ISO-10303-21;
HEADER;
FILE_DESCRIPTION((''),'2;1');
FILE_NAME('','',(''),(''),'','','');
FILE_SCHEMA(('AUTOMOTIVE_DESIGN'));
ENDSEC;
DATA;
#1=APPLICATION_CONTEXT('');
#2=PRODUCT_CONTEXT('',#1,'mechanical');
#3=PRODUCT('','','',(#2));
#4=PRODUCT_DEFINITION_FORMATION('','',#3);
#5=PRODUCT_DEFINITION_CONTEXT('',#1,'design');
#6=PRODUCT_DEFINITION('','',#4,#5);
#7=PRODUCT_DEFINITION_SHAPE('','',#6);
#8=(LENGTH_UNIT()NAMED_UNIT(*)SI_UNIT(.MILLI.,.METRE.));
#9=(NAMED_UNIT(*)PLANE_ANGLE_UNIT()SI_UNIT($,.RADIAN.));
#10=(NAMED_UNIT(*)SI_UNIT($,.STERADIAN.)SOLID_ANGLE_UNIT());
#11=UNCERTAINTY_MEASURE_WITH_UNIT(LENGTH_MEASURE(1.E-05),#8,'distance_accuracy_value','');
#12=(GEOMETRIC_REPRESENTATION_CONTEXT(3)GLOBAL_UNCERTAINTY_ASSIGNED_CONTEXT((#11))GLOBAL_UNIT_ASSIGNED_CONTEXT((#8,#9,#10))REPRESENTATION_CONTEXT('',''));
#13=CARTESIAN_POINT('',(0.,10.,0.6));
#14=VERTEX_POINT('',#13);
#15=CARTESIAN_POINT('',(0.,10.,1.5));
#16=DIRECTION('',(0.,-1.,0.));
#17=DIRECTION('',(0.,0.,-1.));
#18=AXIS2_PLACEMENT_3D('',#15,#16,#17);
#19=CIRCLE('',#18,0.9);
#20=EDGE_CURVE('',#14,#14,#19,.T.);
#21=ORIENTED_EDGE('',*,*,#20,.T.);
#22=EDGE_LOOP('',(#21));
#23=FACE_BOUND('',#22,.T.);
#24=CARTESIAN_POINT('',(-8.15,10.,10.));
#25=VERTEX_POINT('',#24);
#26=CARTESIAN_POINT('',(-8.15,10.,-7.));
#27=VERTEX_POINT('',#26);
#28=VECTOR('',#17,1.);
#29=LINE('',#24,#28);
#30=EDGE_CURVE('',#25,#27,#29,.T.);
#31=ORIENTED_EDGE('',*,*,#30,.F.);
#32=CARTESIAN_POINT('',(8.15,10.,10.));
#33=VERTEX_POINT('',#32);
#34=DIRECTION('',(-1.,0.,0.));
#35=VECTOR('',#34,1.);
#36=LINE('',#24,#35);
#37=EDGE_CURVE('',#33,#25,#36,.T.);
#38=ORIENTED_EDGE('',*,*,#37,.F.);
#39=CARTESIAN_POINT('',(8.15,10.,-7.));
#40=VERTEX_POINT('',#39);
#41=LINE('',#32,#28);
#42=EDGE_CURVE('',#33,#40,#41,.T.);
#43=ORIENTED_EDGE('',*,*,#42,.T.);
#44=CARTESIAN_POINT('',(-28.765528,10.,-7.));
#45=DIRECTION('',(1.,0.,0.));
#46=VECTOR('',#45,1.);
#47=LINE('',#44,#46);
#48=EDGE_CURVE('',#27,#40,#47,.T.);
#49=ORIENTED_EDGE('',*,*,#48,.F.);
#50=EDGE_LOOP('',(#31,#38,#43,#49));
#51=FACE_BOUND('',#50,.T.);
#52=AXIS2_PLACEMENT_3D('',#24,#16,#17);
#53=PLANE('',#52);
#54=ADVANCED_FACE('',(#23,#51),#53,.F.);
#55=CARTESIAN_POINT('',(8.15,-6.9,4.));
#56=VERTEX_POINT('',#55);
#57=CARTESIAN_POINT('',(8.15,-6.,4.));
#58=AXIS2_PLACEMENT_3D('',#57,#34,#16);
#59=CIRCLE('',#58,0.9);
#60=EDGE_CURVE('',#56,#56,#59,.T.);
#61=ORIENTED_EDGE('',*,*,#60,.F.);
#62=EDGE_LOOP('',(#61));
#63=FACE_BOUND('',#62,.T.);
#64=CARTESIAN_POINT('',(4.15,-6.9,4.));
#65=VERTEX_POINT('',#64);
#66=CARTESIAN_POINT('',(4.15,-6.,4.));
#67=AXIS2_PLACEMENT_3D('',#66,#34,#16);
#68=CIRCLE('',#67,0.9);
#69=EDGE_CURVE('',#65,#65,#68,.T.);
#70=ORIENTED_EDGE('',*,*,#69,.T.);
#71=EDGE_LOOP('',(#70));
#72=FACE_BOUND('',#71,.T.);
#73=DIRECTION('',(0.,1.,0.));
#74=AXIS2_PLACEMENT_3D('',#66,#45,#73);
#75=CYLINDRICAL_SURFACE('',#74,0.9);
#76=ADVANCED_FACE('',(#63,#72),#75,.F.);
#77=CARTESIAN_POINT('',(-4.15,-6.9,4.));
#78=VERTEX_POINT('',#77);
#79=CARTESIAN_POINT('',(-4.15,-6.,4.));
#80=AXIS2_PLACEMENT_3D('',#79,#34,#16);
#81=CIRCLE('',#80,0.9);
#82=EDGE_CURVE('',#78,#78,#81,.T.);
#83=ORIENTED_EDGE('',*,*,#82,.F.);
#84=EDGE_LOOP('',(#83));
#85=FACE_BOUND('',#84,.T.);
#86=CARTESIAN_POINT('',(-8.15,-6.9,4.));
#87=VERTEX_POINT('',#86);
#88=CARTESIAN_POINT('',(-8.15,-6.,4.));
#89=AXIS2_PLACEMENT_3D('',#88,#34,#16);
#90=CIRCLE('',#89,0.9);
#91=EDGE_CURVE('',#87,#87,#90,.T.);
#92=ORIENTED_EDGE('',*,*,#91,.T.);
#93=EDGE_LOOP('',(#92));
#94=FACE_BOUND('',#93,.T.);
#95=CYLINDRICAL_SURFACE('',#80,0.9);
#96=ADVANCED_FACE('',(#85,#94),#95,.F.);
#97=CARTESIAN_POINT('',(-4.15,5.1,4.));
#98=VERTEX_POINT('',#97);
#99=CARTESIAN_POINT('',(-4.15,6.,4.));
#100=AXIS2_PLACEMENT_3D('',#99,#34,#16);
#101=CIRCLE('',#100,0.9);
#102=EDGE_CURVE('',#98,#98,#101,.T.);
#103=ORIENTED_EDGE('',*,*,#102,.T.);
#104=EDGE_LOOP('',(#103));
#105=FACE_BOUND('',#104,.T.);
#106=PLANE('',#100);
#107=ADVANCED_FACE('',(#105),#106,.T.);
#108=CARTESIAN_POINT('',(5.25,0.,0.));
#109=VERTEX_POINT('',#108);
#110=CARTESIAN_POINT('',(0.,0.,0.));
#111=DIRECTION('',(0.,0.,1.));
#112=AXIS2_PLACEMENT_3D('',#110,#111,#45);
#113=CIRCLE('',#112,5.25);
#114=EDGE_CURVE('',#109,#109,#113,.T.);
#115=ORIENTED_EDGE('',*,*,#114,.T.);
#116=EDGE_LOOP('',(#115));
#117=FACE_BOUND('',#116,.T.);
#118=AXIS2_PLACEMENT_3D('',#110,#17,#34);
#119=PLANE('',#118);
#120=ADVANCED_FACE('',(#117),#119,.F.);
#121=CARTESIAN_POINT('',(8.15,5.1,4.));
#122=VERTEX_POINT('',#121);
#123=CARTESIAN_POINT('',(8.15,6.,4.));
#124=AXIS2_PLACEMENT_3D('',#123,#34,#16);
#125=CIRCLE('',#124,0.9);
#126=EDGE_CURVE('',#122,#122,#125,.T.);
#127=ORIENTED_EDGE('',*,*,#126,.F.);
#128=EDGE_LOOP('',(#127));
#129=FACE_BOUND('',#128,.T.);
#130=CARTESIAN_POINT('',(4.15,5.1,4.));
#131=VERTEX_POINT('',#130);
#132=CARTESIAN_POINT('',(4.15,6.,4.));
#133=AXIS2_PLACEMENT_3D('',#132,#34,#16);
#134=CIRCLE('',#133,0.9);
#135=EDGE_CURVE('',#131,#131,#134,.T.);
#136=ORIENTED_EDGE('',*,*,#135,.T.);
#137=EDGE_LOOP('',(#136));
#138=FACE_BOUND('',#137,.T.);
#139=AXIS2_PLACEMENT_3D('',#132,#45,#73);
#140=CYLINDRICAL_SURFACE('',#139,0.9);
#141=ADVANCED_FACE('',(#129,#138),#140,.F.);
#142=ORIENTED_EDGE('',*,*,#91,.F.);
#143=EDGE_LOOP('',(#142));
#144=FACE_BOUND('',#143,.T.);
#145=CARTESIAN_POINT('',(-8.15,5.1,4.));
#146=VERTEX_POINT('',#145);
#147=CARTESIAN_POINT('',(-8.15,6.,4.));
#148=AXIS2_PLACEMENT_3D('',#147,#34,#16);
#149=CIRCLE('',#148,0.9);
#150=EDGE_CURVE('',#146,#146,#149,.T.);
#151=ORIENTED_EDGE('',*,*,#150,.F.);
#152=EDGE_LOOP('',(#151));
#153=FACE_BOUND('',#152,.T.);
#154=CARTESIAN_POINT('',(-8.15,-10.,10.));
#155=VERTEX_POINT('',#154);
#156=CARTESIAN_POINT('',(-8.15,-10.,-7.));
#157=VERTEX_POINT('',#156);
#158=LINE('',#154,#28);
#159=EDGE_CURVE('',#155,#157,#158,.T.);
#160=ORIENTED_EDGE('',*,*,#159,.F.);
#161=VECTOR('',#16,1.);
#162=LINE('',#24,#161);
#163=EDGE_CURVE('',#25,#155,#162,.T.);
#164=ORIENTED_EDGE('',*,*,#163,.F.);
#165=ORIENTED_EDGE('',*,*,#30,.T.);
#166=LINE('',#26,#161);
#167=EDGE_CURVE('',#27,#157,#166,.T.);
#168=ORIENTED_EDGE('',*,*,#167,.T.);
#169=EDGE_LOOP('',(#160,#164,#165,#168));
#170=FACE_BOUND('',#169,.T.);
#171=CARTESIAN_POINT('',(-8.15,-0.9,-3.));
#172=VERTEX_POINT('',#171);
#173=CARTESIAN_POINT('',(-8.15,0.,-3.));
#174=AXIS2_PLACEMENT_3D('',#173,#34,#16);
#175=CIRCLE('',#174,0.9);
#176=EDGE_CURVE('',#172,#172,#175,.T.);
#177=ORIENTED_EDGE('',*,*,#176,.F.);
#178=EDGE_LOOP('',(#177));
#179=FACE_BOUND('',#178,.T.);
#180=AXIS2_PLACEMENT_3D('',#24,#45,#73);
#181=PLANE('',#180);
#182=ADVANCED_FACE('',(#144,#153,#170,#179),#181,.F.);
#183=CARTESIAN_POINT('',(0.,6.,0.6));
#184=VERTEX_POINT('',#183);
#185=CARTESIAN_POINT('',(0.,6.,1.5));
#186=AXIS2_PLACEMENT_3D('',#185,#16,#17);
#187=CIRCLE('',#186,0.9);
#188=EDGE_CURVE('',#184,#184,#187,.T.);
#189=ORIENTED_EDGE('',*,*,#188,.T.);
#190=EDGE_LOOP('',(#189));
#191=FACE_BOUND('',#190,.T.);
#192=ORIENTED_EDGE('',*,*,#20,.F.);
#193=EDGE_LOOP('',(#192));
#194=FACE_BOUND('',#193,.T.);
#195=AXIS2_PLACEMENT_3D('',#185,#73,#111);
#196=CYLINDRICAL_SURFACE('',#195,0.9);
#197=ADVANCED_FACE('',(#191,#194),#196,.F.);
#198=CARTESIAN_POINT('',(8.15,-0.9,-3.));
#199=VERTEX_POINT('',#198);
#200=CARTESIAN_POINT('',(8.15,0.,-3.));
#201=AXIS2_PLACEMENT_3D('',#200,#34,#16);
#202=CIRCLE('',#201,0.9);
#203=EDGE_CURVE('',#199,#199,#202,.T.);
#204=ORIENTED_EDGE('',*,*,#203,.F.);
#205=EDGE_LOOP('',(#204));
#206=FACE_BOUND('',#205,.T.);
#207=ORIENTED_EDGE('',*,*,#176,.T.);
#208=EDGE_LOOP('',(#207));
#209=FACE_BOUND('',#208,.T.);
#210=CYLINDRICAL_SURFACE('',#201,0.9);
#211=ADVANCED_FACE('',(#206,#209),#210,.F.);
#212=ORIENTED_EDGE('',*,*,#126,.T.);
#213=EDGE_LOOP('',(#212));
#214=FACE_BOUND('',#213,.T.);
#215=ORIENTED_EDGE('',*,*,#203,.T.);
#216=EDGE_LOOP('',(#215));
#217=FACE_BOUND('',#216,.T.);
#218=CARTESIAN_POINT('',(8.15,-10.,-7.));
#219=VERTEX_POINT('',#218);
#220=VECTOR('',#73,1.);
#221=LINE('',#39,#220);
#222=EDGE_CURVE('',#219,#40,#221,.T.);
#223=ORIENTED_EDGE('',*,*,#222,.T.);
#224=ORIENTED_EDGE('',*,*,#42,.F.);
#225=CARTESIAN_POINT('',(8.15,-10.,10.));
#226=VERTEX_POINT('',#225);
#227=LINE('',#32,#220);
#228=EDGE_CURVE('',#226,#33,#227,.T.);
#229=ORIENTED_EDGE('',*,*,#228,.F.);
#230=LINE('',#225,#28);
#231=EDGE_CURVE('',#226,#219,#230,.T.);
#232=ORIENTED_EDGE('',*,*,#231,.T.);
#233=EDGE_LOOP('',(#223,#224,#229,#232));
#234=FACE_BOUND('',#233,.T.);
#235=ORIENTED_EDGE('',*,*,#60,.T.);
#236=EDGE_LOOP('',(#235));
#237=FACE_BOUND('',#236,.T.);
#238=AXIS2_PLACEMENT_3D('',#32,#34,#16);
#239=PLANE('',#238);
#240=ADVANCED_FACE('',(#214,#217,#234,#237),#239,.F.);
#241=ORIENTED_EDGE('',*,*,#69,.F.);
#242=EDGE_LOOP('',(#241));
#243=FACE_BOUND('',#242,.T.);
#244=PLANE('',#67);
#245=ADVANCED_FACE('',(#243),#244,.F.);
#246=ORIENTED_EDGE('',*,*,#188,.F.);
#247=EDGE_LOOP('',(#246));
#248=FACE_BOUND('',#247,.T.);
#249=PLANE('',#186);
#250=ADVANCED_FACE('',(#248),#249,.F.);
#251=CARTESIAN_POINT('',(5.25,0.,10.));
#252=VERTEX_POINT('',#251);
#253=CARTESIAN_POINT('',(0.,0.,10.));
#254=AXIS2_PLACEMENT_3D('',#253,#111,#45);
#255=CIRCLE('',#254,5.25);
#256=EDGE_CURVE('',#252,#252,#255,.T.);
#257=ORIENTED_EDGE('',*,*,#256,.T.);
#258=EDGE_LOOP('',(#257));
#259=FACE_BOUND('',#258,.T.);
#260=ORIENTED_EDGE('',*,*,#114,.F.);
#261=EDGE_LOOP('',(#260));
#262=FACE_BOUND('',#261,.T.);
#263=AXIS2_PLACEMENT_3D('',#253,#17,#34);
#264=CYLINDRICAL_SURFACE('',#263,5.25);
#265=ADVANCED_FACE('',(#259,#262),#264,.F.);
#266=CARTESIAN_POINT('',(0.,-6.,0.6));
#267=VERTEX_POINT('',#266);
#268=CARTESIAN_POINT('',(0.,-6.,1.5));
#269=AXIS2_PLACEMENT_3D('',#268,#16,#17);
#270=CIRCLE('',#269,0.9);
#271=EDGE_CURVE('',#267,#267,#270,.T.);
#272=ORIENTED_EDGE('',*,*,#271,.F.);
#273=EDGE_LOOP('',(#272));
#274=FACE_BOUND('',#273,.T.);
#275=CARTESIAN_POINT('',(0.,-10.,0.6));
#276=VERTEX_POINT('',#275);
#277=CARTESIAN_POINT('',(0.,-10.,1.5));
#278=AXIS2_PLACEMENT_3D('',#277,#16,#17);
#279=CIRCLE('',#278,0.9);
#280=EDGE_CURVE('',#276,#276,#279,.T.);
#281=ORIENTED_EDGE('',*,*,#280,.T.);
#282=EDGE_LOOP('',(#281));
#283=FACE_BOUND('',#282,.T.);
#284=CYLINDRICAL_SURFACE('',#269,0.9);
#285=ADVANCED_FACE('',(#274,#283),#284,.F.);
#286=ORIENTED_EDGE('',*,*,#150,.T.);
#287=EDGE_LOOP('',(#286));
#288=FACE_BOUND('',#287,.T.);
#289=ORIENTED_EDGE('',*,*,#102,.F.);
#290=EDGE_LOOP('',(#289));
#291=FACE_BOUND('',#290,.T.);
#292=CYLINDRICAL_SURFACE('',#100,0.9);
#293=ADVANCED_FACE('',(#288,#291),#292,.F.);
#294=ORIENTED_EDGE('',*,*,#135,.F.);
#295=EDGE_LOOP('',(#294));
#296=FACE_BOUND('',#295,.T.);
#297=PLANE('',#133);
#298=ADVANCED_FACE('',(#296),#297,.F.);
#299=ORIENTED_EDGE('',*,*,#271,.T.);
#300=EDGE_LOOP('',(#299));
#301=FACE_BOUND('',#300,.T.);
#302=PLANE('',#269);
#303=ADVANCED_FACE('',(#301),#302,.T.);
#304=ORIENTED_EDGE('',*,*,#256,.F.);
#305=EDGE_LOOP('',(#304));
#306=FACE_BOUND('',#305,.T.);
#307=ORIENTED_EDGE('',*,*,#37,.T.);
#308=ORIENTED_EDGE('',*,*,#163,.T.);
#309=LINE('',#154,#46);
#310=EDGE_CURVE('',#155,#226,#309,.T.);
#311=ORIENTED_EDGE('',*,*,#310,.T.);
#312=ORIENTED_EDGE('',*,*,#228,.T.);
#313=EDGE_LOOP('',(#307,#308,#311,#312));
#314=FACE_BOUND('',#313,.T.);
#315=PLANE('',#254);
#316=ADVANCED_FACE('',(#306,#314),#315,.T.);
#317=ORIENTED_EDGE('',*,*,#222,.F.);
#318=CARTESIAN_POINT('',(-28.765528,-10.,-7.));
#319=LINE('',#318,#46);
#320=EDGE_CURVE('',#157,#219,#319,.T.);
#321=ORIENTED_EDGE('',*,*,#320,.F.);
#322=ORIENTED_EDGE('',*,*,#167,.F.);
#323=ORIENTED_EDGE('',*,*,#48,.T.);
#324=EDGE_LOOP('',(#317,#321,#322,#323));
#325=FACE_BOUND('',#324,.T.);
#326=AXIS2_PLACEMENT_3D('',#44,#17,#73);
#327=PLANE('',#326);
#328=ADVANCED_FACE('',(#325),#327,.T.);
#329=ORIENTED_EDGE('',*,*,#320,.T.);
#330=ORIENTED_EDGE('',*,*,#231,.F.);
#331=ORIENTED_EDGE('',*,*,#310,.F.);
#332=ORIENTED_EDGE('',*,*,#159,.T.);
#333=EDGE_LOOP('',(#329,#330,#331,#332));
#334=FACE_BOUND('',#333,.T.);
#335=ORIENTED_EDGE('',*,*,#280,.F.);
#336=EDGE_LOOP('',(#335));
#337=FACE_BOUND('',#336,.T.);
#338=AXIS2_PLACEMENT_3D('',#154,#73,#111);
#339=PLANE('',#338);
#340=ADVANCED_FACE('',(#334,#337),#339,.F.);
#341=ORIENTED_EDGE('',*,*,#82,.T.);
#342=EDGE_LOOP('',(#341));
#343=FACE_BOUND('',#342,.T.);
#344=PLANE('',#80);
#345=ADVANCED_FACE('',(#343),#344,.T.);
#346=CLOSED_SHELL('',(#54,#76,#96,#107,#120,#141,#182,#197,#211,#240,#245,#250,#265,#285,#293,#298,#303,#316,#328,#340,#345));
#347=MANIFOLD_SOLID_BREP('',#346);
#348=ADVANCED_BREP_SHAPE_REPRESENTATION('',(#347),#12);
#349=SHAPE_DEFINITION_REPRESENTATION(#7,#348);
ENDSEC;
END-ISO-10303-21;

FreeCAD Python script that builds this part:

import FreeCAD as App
import Part
import Sketcher


def add_polygon(sketch, points):
    """Adds a closed chain of lines whose ends are joined by coincident constraints."""
    first, n = sketch.GeometryCount, len(points)
    for a, b in zip(points, points[1:] + points[:1]):
        sketch.addGeometry(Part.LineSegment(App.Vector(*a, 0), App.Vector(*b, 0)), False)
    for i in range(n):
        sketch.addConstraint(Sketcher.Constraint("Coincident", first + i, 2, first + (i + 1) % n, 1))

doc = App.newDocument("Part")
body = doc.addObject("PartDesign::Body", "Body")

sketch1 = doc.addObject("Sketcher::SketchObject", "Sketch")
body.addObject(sketch1)
sketch1.AttachmentSupport = (doc.XY_Plane, [""])
sketch1.MapMode = "FlatFace"
add_polygon(sketch1, [(-8, 10), (-8, -10), (8, -10), (8, 10)])
sketch1.addGeometry(Part.Circle(App.Vector(0, 0, 0), App.Vector(0, 0, 1), 5), False)
sketch1.addConstraint([
    Sketcher.Constraint("Vertical", 0),
    Sketcher.Constraint("Horizontal", 1),
    Sketcher.Constraint("Vertical", 2),
    Sketcher.Constraint("Horizontal", 3),
    Sketcher.Constraint("Coincident", 4, 3, -1, 1),
    Sketcher.Constraint("Symmetric", 0, 2, 2, 2, -1, 1),
    Sketcher.Constraint("Diameter", 4, 10.5),
    Sketcher.Constraint("DistanceY", 0, 2, 0, 1, 20.0),
    Sketcher.Constraint("DistanceX", 1, 1, 1, 2, 16.3),
])
pad1 = doc.addObject("PartDesign::Pad", "Pad")
body.addObject(pad1)
pad1.Profile = sketch1
pad1.Length = 10

sketch2 = doc.addObject("Sketcher::SketchObject", "Sketch001")
body.addObject(sketch2)
sketch2.AttachmentSupport = (doc.XY_Plane, [""])
sketch2.MapMode = "FlatFace"
add_polygon(sketch2, [(-8, 10), (-8, -10), (8, -10), (8, 10)])
sketch2.addConstraint([
    Sketcher.Constraint("Vertical", 0),
    Sketcher.Constraint("Horizontal", 1),
    Sketcher.Constraint("Vertical", 2),
    Sketcher.Constraint("Horizontal", 3),
    Sketcher.Constraint("Symmetric", 0, 2, 2, 2, -1, 1),
    Sketcher.Constraint("DistanceY", 0, 2, 0, 1, 20.0),
    Sketcher.Constraint("DistanceX", 1, 1, 1, 2, 16.3),
])
pad2 = doc.addObject("PartDesign::Pad", "Pad001")
body.addObject(pad2)
pad2.Profile = sketch2
pad2.Length = 2
pad2.Reversed = True

sketch3 = doc.addObject("Sketcher::SketchObject", "Sketch002")
body.addObject(sketch3)
sketch3.AttachmentSupport = (doc.YZ_Plane, [""])
sketch3.MapMode = "FlatFace"
sketch3.AttachmentOffset = App.Placement(App.Vector(0, 0, -8.15), App.Rotation())
sketch3.addGeometry([
    Part.Circle(App.Vector(6, 4, 0), App.Vector(0, 0, 1), 0.9),
    Part.Circle(App.Vector(-6, 4, 0), App.Vector(0, 0, 1), 0.9),
], False)
sketch3.addConstraint([
    Sketcher.Constraint("Equal", 0, 1),
    Sketcher.Constraint("Symmetric", 0, 3, 1, 3, -2),
    Sketcher.Constraint("Diameter", 0, 1.8),
    Sketcher.Constraint("DistanceX", -1, 1, 0, 3, 6.0),
    Sketcher.Constraint("DistanceY", -1, 1, 0, 3, 4.0),
])
pocket1 = doc.addObject("PartDesign::Pocket", "Pocket")
body.addObject(pocket1)
pocket1.Profile = sketch3
pocket1.Length = 4
pocket1.Reversed = True

sketch4 = doc.addObject("Sketcher::SketchObject", "Sketch003")
body.addObject(sketch4)
sketch4.AttachmentSupport = (doc.YZ_Plane, [""])
sketch4.MapMode = "FlatFace"
sketch4.AttachmentOffset = App.Placement(App.Vector(0, 0, 4.15), App.Rotation())
sketch4.addGeometry([
    Part.Circle(App.Vector(6, 4, 0), App.Vector(0, 0, 1), 0.9),
    Part.Circle(App.Vector(-6, 4, 0), App.Vector(0, 0, 1), 0.9),
], False)
sketch4.addConstraint([
    Sketcher.Constraint("Equal", 0, 1),
    Sketcher.Constraint("Symmetric", 0, 3, 1, 3, -2),
    Sketcher.Constraint("Diameter", 0, 1.8),
    Sketcher.Constraint("DistanceX", -1, 1, 0, 3, 6.0),
    Sketcher.Constraint("DistanceY", -1, 1, 0, 3, 4.0),
])
pocket2 = doc.addObject("PartDesign::Pocket", "Pocket001")
body.addObject(pocket2)
pocket2.Profile = sketch4
pocket2.Length = 4
pocket2.Reversed = True

sketch5 = doc.addObject("Sketcher::SketchObject", "Sketch004")
body.addObject(sketch5)
sketch5.AttachmentSupport = (doc.YZ_Plane, [""])
sketch5.MapMode = "FlatFace"
sketch5.AttachmentOffset = App.Placement(App.Vector(0, 0, 8.15), App.Rotation())
add_polygon(sketch5, [(10, -2), (-10, -2), (-10, -7), (10, -7)])
sketch5.addConstraint([
    Sketcher.Constraint("Horizontal", 0),
    Sketcher.Constraint("Vertical", 1),
    Sketcher.Constraint("Horizontal", 2),
    Sketcher.Constraint("Vertical", 3),
    Sketcher.Constraint("DistanceX", 0, 2, 0, 1, 20.0),
    Sketcher.Constraint("DistanceY", 1, 2, 1, 1, 5.0),
    Sketcher.Constraint("DistanceX", 0, 2, -1, 1, 10.0),
    Sketcher.Constraint("DistanceY", 0, 2, -1, 1, 2.0),
])
pad3 = doc.addObject("PartDesign::Pad", "Pad002")
body.addObject(pad3)
pad3.Profile = sketch5
pad3.Length = 16.3
pad3.Reversed = True

sketch6 = doc.addObject("Sketcher::SketchObject", "Sketch005")
body.addObject(sketch6)
sketch6.AttachmentSupport = (doc.YZ_Plane, [""])
sketch6.MapMode = "FlatFace"
sketch6.AttachmentOffset = App.Placement(App.Vector(0, 0, -8.15), App.Rotation())
sketch6.addGeometry(Part.Circle(App.Vector(0, -3, 0), App.Vector(0, 0, 1), 0.9), False)
sketch6.addConstraint([
    Sketcher.Constraint("PointOnObject", 0, 3, -2),
    Sketcher.Constraint("Diameter", 0, 1.8),
    Sketcher.Constraint("DistanceY", 0, 3, -1, 1, 3.0),
])
pocket3 = doc.addObject("PartDesign::Pocket", "Pocket002")
body.addObject(pocket3)
pocket3.Profile = sketch6
pocket3.Type = "ThroughAll"
pocket3.Reversed = True

sketch7 = doc.addObject("Sketcher::SketchObject", "Sketch006")
body.addObject(sketch7)
sketch7.AttachmentSupport = (doc.XZ_Plane, [""])
sketch7.MapMode = "FlatFace"
sketch7.AttachmentOffset = App.Placement(App.Vector(0, 0, 10), App.Rotation())
sketch7.addGeometry(Part.Circle(App.Vector(0, 1.5, 0), App.Vector(0, 0, 1), 0.9), False)
sketch7.addConstraint([
    Sketcher.Constraint("PointOnObject", 0, 3, -2),
    Sketcher.Constraint("Diameter", 0, 1.8),
    Sketcher.Constraint("DistanceY", -1, 1, 0, 3, 1.5),
])
pocket4 = doc.addObject("PartDesign::Pocket", "Pocket003")
body.addObject(pocket4)
pocket4.Profile = sketch7
pocket4.Length = 4

sketch8 = doc.addObject("Sketcher::SketchObject", "Sketch007")
body.addObject(sketch8)
sketch8.AttachmentSupport = (doc.XZ_Plane, [""])
sketch8.MapMode = "FlatFace"
sketch8.AttachmentOffset = App.Placement(App.Vector(0, 0, -6), App.Rotation())
sketch8.addGeometry(Part.Circle(App.Vector(0, 1.5, 0), App.Vector(0, 0, 1), 0.9), False)
sketch8.addConstraint([
    Sketcher.Constraint("PointOnObject", 0, 3, -2),
    Sketcher.Constraint("Diameter", 0, 1.8),
    Sketcher.Constraint("DistanceY", -1, 1, 0, 3, 1.5),
])
pocket5 = doc.addObject("PartDesign::Pocket", "Pocket004")
body.addObject(pocket5)
pocket5.Profile = sketch8
pocket5.Length = 4

doc.recompute()
